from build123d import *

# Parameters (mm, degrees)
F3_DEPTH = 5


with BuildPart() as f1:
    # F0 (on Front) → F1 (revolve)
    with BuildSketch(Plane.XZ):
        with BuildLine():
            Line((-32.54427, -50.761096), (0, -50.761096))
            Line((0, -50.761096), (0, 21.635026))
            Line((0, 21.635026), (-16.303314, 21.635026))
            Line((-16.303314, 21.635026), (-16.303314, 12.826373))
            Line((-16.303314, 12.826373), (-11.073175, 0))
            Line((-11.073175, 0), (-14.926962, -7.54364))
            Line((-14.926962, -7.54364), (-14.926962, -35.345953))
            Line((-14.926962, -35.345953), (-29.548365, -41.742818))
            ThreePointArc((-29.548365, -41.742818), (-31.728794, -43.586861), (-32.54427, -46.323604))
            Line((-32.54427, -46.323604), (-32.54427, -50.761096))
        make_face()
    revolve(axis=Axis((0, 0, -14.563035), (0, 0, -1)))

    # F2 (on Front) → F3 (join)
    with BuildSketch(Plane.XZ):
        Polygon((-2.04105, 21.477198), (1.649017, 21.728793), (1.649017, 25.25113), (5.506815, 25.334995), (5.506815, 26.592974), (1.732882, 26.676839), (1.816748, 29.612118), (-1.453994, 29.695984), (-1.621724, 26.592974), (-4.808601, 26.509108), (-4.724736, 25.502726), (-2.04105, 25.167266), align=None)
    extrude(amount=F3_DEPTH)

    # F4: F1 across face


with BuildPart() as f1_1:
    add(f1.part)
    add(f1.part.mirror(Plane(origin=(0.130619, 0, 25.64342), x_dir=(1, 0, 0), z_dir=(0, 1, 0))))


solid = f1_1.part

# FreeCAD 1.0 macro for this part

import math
import FreeCAD as App
import Part
import Sketcher

V = App.Vector

doc = App.newDocument("Part")
body = doc.addObject("PartDesign::Body", "Body")

# Sketch on XZ plane
sketch1 = doc.addObject("Sketcher::SketchObject", "Sketch")
body.addObject(sketch1)
sketch1.AttachmentSupport = (doc.XZ_Plane, [""])
sketch1.MapMode = "FlatFace"
sketch1.addGeometry([
    Part.LineSegment(V(-32.54427, -50.761096, 0), V(0, -50.761096, 0)),  # 0
    Part.LineSegment(V(0, -50.761096, 0), V(0, 21.635026, 0)),  # 1
    Part.LineSegment(V(0, 21.635026, 0), V(-16.303314, 21.635026, 0)),  # 2
    Part.LineSegment(V(-16.303314, 21.635026, 0), V(-16.303314, 12.826373, 0)),  # 3
    Part.LineSegment(V(-16.303314, 12.826373, 0), V(-11.073175, 0, 0)),  # 4
    Part.LineSegment(V(-11.073175, 0, 0), V(-14.926962, -7.54364, 0)),  # 5
    Part.LineSegment(V(-14.926962, -7.54364, 0), V(-14.926962, -35.345953, 0)),  # 6
    Part.LineSegment(V(-14.926962, -35.345953, 0), V(-29.548365, -41.742818, 0)),  # 7
    Part.ArcOfCircle(Part.Circle(V(-27.544273, -46.323603, 0), V(0, 0, 1), 4.999997), math.radians(113.629369), math.radians(180.000016)),  # 8
    Part.LineSegment(V(-32.54427, -46.323604, 0), V(-32.54427, -50.761096, 0)),  # 9
], False)
sketch1.addConstraint([
    Sketcher.Constraint("Coincident", 0, 2, 1, 1),
    Sketcher.Constraint("Coincident", 1, 2, 2, 1),
    Sketcher.Constraint("Coincident", 2, 2, 3, 1),
    Sketcher.Constraint("Coincident", 3, 2, 4, 1),
    Sketcher.Constraint("Coincident", 4, 2, 5, 1),
    Sketcher.Constraint("Coincident", 5, 2, 6, 1),
    Sketcher.Constraint("Coincident", 6, 2, 7, 1),
    Sketcher.Constraint("Tangent", 7, 2, 8, 1),
    Sketcher.Constraint("Tangent", 8, 2, 9, 1),
    Sketcher.Constraint("Coincident", 9, 2, 0, 1),
    Sketcher.Constraint("Horizontal", 0),
    Sketcher.Constraint("Vertical", 1),
    Sketcher.Constraint("Horizontal", 2),
    Sketcher.Constraint("Vertical", 3),
    Sketcher.Constraint("Vertical", 6),
    Sketcher.Constraint("Vertical", 9),
    Sketcher.Constraint("PointOnObject", 0, 2, -2),
    Sketcher.Constraint("PointOnObject", 4, 2, -1),
    Sketcher.Constraint("Radius", 8, 4.999997),
    Sketcher.Constraint("DistanceX", 0, 1, 0, 2, 32.54427),
    Sketcher.Constraint("DistanceY", 9, 2, 9, 1, 4.437492),
    Sketcher.Constraint("Distance", 4, 13.851722),
    Sketcher.Constraint("Distance", 5, 8.47102),
    Sketcher.Constraint("Distance", 7, 15.95949),
    Sketcher.Constraint("DistanceX", 2, 2, 2, 1, 16.303314),
    Sketcher.Constraint("DistanceY", 1, 1, 1, 2, 72.396122),
    Sketcher.Constraint("DistanceY", 3, 2, 3, 1, 8.808653),
    Sketcher.Constraint("DistanceY", 6, 2, 6, 1, 27.802313),
    Sketcher.Constraint("DistanceY", 5, 2, -1, 1, 7.54364),
])
revolution = doc.addObject("PartDesign::Revolution", "Revolution")
body.addObject(revolution)
revolution.Profile = sketch1
revolution.ReferenceAxis = (sketch1, ["V_Axis"])
revolution.Angle = 360

# Sketch on XZ plane
sketch2 = doc.addObject("Sketcher::SketchObject", "Sketch001")
body.addObject(sketch2)
sketch2.AttachmentSupport = (doc.XZ_Plane, [""])
sketch2.MapMode = "FlatFace"
sketch2.addGeometry([
    Part.LineSegment(V(-2.04105, 21.477198, 0), V(1.649017, 21.728793, 0)),  # 0
    Part.LineSegment(V(1.649017, 21.728793, 0), V(1.649017, 25.25113, 0)),  # 1
    Part.LineSegment(V(1.649017, 25.25113, 0), V(5.506815, 25.334995, 0)),  # 2
    Part.LineSegment(V(5.506815, 25.334995, 0), V(5.506815, 26.592974, 0)),  # 3
    Part.LineSegment(V(5.506815, 26.592974, 0), V(1.732882, 26.676839, 0)),  # 4
    Part.LineSegment(V(1.732882, 26.676839, 0), V(1.816748, 29.612118, 0)),  # 5
    Part.LineSegment(V(1.816748, 29.612118, 0), V(-1.453994, 29.695984, 0)),  # 6
    Part.LineSegment(V(-1.453994, 29.695984, 0), V(-1.621724, 26.592974, 0)),  # 7
    Part.LineSegment(V(-1.621724, 26.592974, 0), V(-4.808601, 26.509108, 0)),  # 8
    Part.LineSegment(V(-4.808601, 26.509108, 0), V(-4.724736, 25.502726, 0)),  # 9
    Part.LineSegment(V(-4.724736, 25.502726, 0), V(-2.04105, 25.167266, 0)),  # 10
    Part.LineSegment(V(-2.04105, 25.167266, 0), V(-2.04105, 21.477198, 0)),  # 11
], False)
sketch2.addConstraint([
    Sketcher.Constraint("Coincident", 0, 2, 1, 1),
    Sketcher.Constraint("Coincident", 1, 2, 2, 1),
    Sketcher.Constraint("Coincident", 2, 2, 3, 1),
    Sketcher.Constraint("Coincident", 3, 2, 4, 1),
    Sketcher.Constraint("Coincident", 4, 2, 5, 1),
    Sketcher.Constraint("Coincident", 5, 2, 6, 1),
    Sketcher.Constraint("Coincident", 6, 2, 7, 1),
    Sketcher.Constraint("Coincident", 7, 2, 8, 1),
    Sketcher.Constraint("Coincident", 8, 2, 9, 1),
    Sketcher.Constraint("Coincident", 9, 2, 10, 1),
    Sketcher.Constraint("Coincident", 10, 2, 11, 1),
    Sketcher.Constraint("Coincident", 11, 2, 0, 1),
    Sketcher.Constraint("Vertical", 1),
    Sketcher.Constraint("Vertical", 3),
    Sketcher.Constraint("Vertical", 11),
    Sketcher.Constraint("Horizontal", 3, 2, 7, 2),
    Sketcher.Constraint("DistanceY", 3, 1, 3, 2, 1.257979),
    Sketcher.Constraint("DistanceY", 11, 2, 11, 1, 3.690068),
    Sketcher.Constraint("DistanceX", 8, 2, -1, 1, 4.808601),
    Sketcher.Constraint("DistanceY", -1, 1, 11, 2, 21.477198),
    Sketcher.Constraint("DistanceY", 0, 2, 2, 2, 3.606202),
    Sketcher.Constraint("Distance", 2, 3.858709),
    Sketcher.Constraint("Distance", 7, 3.10754),
    Sketcher.Constraint("Distance", 8, 3.18798),
    Sketcher.Constraint("Distance", 9, 1.00987),
    Sketcher.Constraint("Distance", 10, 2.704571),
    Sketcher.Constraint("DistanceY", 1, 1, 1, 2, 3.522337),
    Sketcher.Constraint("DistanceY", -1, 1, 1, 2, 25.25113),
    Sketcher.Constraint("DistanceY", -1, 1, 4, 2, 26.676839),
    Sketcher.Constraint("DistanceY", -1, 1, 8, 2, 26.509108),
    Sketcher.Constraint("DistanceX", 10, 2, -1, 1, 2.04105),
    Sketcher.Constraint("DistanceY", 4, 2, 5, 2, 2.935279),
    Sketcher.Constraint("DistanceX", 1, 2, 5, 2, 0.167731),
    Sketcher.Constraint("DistanceX", 6, 2, 1, 2, 3.103011),
    Sketcher.Constraint("DistanceY", 3, 2, 6, 2, 3.10301),
    Sketcher.Constraint("DistanceX", 10, 2, 4, 2, 3.773932),
])
pad1 = doc.addObject("PartDesign::Pad", "Pad")
body.addObject(pad1)
pad1.Profile = sketch2
pad1.Length = 5
body2 = doc.addObject("PartDesign::Body", "Body001")
doc.recompute()

body2.BaseFeature = body
doc.recompute()

mirroring = doc.addObject("Part::Mirroring", "Mirroring")
mirroring.Source = body
mirroring.Base = V(0.130619, 0, 25.64342)
mirroring.Normal = V(0, 1, 0)
body3 = doc.addObject("PartDesign::Body", "Body002")
body3.BaseFeature = mirroring
boolean = doc.addObject("PartDesign::Boolean", "Boolean")
body2.addObject(boolean)
boolean.Type = "Fuse"
boolean.addObjects([body3])
doc.recompute()
mirroring.Visibility = False

doc.recompute()
